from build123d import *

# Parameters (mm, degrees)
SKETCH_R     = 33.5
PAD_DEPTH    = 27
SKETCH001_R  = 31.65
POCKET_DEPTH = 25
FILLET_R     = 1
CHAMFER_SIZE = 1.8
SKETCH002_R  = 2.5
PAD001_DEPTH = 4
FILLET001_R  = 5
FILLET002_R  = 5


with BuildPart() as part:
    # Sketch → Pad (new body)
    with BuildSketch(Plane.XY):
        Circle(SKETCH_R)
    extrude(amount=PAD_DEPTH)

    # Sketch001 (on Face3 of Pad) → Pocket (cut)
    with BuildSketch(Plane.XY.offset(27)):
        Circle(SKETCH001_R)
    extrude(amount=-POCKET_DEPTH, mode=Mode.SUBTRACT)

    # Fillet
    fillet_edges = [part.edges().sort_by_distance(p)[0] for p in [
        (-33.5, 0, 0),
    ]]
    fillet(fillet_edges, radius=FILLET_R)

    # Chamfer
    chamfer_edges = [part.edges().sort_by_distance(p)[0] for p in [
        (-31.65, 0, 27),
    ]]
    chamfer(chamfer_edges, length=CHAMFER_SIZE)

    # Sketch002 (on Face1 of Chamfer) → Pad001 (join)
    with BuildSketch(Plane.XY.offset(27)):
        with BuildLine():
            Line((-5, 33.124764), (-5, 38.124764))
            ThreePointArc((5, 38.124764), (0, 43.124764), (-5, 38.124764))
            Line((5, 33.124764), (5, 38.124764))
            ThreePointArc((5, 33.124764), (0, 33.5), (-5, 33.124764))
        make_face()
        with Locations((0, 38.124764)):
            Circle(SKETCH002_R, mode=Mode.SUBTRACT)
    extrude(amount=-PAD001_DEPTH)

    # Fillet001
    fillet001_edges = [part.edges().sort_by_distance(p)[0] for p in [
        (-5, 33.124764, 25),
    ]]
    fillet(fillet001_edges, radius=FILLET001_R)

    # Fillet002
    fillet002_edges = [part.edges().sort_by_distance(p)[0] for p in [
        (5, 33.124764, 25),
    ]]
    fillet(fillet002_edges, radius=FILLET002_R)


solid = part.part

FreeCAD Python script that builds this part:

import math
import FreeCAD as App
import Part
import Sketcher
from FreeCAD import Vector
Q = App.Units.Quantity


def edges_at(feature, points):
    """Names of the edges that pass closest to the given points."""
    edges = feature.Shape.Edges
    near = lambda p: min(range(len(edges)), key=lambda i: edges[i].distToShape(Part.Vertex(*p))[0])
    return sorted({f"Edge{near(p) + 1}" for p in points})

doc = App.newDocument("Part")
body = doc.addObject("PartDesign::Body", "Body")

# Sketch on XY plane
sketch1 = body.newObject("Sketcher::SketchObject", "Sketch")
sketch1.AttachmentSupport = (doc.getObject("XY_Plane"), [""])
sketch1.MapMode = "FlatFace"
sketch1.addGeometry(Part.Circle(Vector(0, 0, 0), Vector(0, 0, 1), 33.5), False)
sketch1.addConstraint(Sketcher.Constraint("Coincident", 0, 3, -1, 1))
sketch1.addConstraint(Sketcher.Constraint("Diameter", 0, Q("67 mm")))
pad1 = body.newObject("PartDesign::Pad", "Pad")
pad1.Profile = sketch1
pad1.Length = 27

# Sketch on XY plane
sketch2 = body.newObject("Sketcher::SketchObject", "Sketch001")
sketch2.AttachmentSupport = (doc.getObject("XY_Plane"), [""])
sketch2.MapMode = "FlatFace"
sketch2.AttachmentOffset = App.Placement(Vector(0, 0, 27), App.Rotation())
sketch2.addGeometry(Part.Circle(Vector(0, 0, 0), Vector(0, 0, 1), 31.65), False)
sketch2.addConstraint(Sketcher.Constraint("Coincident", 0, 3, -1, 1))
sketch2.addConstraint(Sketcher.Constraint("Diameter", 0, Q("63.3 mm")))
pocket1 = body.newObject("PartDesign::Pocket", "Pocket")
pocket1.Profile = sketch2
pocket1.Length = 25
doc.recompute()

fillet = body.newObject("PartDesign::Fillet", "Fillet")
fillet.Base = (pocket1, edges_at(pocket1, [(-33.5, 0, 0)]))
fillet.Radius = 1
doc.recompute()

chamfer = body.newObject("PartDesign::Chamfer", "Chamfer")
chamfer.Base = (fillet, edges_at(fillet, [(-31.65, 0, 27)]))
chamfer.Size = 1.8

# Sketch on XY plane
sketch3 = body.newObject("Sketcher::SketchObject", "Sketch002")
sketch3.AttachmentSupport = (doc.getObject("XY_Plane"), [""])
sketch3.MapMode = "FlatFace"
sketch3.AttachmentOffset = App.Placement(Vector(0, 0, 27), App.Rotation())
sketch3.addGeometry(Part.LineSegment(Vector(-5, 38.124764, 0), Vector(-5, 33.124764, 0)), False)
sketch3.addGeometry(Part.ArcOfCircle(Part.Circle(Vector(0, 0.000013, 0), Vector(0, 0, 1), 33.499987), math.radians(81.416315), math.radians(98.583685)), False)
sketch3.addGeometry(Part.LineSegment(Vector(5, 33.124764, 0), Vector(5, 38.124764, 0)), False)
sketch3.addGeometry(Part.ArcOfCircle(Part.Circle(Vector(0, 38.124764, 0), Vector(0, 0, 1), 5), math.radians(0), math.radians(180)), False)
sketch3.addGeometry(Part.Circle(Vector(0, 38.124764, 0), Vector(0, 0, 1), 2.5), False)
sketch3.addConstraint(Sketcher.Constraint("Coincident", 0, 2, 1, 2))
sketch3.addConstraint(Sketcher.Constraint("Coincident", 1, 1, 2, 1))
sketch3.addConstraint(Sketcher.Constraint("Tangent", 2, 2, 3, 1))
sketch3.addConstraint(Sketcher.Constraint("Tangent", 3, 2, 0, 1))
sketch3.addConstraint(Sketcher.Constraint("Vertical", 0))
sketch3.addConstraint(Sketcher.Constraint("Vertical", 2))
sketch3.addConstraint(Sketcher.Constraint("Coincident", 4, 3, 3, 3))
sketch3.addConstraint(Sketcher.Constraint("Symmetric", 0, 2, 1, 1, -2))
sketch3.addConstraint(Sketcher.Constraint("Diameter", 4, Q("5 mm")))
sketch3.addConstraint(Sketcher.Constraint("Radius", 3, Q("5 mm")))
sketch3.addConstraint(Sketcher.Constraint("DistanceY", 0, 2, 0, 1, Q("5 mm")))
sketch3.addConstraint(Sketcher.Constraint("Radius", 1, Q("33.499987 mm")))
sketch3.addConstraint(Sketcher.Constraint("DistanceY", -1, 1, 3, 3, Q("38.124764 mm")))
pad2 = body.newObject("PartDesign::Pad", "Pad001")
pad2.Profile = sketch3
pad2.Length = 4
pad2.Reversed = True
doc.recompute()

fillet2 = body.newObject("PartDesign::Fillet", "Fillet001")
fillet2.Base = (pad2, edges_at(pad2, [(-5, 33.125, 25)]))
fillet2.Radius = 5
doc.recompute()

fillet3 = body.newObject("PartDesign::Fillet", "Fillet002")
fillet3.Base = (fillet2, edges_at(fillet2, [(5, 33.125, 25)]))
fillet3.Radius = 5

doc.recompute()
